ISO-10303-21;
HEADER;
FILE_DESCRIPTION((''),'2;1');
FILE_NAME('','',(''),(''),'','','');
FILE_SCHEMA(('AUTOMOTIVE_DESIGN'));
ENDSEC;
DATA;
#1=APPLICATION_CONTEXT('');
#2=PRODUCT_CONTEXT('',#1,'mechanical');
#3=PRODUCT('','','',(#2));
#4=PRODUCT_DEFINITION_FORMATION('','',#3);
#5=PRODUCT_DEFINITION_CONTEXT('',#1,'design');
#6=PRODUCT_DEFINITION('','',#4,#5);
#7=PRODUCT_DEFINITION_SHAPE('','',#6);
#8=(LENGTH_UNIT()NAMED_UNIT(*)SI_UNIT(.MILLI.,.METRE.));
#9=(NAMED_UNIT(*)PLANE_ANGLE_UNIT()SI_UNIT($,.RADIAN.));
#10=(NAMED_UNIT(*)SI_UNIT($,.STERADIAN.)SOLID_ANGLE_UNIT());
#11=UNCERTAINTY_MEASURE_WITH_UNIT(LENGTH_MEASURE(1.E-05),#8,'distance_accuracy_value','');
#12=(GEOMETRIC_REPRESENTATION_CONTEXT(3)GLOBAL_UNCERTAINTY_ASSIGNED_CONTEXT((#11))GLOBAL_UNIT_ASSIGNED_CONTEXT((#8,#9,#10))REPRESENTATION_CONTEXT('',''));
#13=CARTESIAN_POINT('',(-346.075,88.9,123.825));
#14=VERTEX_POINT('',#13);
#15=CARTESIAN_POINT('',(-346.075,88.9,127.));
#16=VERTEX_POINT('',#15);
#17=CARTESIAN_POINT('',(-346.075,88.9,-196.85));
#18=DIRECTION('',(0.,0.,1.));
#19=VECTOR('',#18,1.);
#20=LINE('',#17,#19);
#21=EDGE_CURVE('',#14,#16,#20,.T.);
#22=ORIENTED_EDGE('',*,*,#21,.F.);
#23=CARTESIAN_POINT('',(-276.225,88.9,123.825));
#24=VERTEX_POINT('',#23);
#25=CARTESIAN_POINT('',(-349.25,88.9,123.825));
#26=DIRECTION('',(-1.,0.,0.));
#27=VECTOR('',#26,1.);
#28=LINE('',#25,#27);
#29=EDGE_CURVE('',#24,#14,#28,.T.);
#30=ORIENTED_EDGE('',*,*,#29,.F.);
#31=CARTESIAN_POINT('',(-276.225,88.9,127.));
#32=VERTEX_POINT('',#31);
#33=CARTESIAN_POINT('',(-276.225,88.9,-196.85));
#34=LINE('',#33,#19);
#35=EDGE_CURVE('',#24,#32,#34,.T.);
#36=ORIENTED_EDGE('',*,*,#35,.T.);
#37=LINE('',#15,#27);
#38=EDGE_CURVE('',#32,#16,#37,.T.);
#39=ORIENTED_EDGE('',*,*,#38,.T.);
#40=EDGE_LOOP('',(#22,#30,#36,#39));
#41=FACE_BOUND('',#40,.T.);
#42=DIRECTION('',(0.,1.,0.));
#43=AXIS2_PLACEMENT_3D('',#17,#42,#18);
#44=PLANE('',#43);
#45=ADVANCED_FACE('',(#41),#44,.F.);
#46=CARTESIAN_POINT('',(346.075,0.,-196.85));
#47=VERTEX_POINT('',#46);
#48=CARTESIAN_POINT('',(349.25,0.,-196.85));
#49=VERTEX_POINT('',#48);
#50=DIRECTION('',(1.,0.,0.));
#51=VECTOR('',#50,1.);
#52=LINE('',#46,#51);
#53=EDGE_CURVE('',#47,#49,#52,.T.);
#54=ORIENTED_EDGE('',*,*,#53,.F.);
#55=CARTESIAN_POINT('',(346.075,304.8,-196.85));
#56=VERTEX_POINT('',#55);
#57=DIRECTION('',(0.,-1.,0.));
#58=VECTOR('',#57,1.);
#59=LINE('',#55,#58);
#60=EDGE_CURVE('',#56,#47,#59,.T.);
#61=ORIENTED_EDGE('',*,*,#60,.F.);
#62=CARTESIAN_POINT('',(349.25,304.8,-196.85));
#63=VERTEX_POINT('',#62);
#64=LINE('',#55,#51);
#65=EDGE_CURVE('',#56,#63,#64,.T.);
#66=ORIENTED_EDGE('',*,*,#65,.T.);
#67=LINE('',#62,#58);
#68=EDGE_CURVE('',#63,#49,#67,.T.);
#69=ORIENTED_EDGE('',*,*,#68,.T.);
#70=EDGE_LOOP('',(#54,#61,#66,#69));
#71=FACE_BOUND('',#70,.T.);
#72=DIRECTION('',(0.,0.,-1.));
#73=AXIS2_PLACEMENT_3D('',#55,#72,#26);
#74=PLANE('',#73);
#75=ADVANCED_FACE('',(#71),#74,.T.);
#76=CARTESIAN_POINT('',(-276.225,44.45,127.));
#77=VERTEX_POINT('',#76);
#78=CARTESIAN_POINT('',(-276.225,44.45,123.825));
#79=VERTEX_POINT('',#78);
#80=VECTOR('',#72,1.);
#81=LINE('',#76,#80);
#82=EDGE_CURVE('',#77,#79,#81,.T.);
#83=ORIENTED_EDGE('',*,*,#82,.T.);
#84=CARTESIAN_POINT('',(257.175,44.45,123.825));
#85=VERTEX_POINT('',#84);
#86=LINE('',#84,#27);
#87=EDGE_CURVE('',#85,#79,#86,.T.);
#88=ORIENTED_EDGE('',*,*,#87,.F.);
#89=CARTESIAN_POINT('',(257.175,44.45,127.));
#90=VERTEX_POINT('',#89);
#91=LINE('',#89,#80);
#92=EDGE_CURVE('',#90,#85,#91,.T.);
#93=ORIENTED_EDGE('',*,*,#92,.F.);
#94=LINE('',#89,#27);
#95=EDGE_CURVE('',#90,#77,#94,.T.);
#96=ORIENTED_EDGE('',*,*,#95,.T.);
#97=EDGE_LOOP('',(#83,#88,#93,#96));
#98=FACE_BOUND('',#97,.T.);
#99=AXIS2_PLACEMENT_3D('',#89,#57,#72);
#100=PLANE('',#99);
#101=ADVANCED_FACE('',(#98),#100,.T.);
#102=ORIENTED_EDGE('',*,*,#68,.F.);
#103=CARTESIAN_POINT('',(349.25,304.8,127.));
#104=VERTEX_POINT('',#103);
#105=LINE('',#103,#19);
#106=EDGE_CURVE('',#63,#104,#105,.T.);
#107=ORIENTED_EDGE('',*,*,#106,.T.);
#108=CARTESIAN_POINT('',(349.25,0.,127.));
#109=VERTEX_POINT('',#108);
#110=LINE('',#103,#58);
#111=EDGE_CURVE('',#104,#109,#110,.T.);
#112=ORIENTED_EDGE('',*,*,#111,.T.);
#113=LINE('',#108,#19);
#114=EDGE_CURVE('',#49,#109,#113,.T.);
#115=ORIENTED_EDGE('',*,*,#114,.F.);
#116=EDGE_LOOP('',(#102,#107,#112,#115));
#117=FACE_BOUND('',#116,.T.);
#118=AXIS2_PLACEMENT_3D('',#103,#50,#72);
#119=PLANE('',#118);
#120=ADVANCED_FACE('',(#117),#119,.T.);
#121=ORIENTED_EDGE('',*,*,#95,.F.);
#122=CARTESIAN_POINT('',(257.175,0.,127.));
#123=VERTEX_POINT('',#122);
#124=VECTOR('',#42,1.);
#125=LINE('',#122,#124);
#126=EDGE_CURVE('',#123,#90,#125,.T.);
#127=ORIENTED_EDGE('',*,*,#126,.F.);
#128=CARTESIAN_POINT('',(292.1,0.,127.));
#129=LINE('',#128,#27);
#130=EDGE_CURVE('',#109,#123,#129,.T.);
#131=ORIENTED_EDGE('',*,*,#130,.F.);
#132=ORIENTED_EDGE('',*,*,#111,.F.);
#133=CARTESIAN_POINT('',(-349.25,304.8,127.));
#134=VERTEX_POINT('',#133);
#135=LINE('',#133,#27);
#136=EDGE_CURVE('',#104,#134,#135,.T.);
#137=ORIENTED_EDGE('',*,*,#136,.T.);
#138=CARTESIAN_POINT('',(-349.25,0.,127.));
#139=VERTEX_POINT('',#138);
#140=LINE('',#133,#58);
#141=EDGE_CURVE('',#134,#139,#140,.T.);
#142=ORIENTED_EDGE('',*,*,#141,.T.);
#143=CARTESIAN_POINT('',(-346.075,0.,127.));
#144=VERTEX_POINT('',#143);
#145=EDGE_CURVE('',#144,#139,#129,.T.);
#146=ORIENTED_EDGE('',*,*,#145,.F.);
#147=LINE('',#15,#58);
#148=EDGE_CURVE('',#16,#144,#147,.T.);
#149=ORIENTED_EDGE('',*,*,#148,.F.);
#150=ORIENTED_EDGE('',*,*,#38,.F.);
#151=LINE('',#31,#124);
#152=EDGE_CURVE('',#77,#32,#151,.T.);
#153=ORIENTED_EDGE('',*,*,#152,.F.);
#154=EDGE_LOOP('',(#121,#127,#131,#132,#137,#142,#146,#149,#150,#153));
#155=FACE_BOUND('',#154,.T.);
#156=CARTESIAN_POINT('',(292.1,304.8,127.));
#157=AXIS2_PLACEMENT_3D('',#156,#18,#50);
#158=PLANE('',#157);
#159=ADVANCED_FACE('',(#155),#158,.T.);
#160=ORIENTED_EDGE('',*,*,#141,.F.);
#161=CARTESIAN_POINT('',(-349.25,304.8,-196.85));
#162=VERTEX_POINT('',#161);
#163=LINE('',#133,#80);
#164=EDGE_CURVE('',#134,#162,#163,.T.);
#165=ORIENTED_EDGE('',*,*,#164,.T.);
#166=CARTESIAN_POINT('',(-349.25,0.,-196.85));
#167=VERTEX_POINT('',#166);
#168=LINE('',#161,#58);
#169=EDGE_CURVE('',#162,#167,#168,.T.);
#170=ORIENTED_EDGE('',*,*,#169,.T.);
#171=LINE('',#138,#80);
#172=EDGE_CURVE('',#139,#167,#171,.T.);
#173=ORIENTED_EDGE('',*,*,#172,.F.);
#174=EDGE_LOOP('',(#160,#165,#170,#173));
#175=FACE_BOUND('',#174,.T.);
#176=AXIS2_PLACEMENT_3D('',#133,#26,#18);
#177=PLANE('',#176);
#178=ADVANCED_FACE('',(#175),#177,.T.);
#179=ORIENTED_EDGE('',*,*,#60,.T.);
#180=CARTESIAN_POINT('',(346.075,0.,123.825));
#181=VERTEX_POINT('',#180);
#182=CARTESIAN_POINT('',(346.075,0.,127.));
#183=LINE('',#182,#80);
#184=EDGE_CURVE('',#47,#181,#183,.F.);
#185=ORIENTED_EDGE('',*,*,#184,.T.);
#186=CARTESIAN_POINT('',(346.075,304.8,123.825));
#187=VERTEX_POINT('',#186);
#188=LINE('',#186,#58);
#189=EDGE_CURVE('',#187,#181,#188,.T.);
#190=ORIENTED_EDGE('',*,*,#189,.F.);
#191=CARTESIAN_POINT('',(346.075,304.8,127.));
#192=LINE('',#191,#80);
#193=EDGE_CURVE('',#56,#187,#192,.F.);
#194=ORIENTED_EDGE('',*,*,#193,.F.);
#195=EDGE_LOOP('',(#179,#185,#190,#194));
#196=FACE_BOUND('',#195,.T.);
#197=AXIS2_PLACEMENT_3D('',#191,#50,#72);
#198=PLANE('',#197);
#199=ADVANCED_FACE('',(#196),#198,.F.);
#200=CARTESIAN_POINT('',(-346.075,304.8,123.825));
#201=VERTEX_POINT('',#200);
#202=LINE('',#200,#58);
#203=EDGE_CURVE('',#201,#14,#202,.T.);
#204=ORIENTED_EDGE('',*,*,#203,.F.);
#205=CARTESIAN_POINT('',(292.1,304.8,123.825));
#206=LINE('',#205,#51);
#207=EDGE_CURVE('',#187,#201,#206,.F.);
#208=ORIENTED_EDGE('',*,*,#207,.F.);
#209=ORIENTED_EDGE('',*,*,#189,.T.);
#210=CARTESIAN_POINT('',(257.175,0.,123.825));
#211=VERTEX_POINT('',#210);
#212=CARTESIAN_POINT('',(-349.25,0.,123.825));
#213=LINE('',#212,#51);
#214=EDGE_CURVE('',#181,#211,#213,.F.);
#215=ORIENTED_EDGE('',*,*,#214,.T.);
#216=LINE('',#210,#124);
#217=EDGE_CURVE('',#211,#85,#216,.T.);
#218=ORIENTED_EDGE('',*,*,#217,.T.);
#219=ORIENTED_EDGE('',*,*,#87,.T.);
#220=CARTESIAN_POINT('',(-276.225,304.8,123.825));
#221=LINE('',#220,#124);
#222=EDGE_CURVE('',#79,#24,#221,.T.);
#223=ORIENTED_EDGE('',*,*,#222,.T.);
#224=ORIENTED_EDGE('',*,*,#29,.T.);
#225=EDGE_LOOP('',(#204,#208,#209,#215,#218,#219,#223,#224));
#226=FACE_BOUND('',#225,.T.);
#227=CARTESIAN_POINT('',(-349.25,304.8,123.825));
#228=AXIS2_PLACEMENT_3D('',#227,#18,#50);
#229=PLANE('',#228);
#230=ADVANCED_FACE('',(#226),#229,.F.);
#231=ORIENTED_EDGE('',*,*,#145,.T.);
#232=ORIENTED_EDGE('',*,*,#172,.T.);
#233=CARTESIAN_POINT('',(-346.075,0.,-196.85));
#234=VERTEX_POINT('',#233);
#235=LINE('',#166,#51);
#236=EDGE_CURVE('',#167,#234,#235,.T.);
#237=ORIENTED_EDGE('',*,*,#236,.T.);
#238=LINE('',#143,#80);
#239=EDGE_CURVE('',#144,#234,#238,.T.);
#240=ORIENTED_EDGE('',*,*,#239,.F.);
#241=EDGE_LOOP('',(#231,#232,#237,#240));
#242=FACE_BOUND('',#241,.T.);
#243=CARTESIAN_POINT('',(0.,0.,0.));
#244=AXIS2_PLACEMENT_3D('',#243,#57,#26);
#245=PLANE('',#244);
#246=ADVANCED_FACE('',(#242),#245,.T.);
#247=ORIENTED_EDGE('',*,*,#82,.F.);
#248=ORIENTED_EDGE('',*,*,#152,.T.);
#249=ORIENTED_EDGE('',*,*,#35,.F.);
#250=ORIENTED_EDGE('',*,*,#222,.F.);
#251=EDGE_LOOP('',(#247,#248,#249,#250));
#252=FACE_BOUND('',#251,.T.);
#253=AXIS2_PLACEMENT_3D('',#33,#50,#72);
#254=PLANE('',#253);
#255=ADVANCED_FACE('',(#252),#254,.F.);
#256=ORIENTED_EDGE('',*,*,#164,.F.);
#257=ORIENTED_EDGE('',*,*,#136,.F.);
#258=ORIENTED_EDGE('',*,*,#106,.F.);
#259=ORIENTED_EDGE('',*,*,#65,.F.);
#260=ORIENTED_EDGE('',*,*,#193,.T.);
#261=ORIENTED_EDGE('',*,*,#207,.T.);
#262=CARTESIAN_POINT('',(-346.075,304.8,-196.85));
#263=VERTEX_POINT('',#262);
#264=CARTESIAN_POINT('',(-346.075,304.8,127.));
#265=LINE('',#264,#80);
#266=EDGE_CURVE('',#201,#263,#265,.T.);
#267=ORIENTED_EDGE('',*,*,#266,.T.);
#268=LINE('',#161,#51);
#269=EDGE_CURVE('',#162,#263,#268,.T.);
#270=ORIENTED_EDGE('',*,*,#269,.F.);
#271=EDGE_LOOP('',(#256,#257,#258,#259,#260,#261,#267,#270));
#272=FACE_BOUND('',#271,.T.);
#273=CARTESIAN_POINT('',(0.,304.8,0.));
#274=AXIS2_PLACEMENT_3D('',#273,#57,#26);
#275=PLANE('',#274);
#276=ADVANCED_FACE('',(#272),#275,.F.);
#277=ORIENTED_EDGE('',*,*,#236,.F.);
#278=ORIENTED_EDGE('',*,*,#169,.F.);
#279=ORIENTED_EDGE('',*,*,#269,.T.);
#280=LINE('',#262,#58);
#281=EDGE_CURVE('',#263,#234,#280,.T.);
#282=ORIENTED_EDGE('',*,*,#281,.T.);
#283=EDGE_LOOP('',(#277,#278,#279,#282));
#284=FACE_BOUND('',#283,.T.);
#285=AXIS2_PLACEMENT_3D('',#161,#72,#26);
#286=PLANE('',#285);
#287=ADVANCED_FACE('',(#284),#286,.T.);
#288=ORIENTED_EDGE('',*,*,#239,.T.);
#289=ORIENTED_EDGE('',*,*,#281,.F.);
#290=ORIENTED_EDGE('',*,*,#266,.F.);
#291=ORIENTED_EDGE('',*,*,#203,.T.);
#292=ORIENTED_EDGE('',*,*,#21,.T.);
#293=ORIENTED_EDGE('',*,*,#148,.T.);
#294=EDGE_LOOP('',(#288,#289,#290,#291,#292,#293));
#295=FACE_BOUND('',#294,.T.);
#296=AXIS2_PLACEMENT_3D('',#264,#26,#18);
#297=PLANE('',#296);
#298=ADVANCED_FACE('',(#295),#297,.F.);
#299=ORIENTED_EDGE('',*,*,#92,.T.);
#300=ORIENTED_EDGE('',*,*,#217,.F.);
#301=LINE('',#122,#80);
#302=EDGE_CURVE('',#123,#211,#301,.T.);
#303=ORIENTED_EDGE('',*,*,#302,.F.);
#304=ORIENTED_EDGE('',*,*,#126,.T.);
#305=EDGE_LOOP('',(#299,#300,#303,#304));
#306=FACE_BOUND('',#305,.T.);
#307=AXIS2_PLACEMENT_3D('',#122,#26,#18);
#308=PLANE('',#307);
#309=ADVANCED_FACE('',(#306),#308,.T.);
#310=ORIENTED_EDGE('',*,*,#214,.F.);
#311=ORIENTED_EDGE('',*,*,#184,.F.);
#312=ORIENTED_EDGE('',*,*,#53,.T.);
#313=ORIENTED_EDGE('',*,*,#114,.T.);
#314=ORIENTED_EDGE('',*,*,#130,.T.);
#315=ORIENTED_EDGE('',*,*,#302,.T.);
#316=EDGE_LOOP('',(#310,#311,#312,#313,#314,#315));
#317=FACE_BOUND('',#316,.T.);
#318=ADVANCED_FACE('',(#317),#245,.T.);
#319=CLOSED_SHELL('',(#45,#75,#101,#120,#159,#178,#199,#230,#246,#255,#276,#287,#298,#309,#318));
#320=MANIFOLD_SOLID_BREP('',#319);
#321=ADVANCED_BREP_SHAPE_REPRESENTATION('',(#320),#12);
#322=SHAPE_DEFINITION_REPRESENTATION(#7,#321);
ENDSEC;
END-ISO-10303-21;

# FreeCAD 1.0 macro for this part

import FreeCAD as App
import Part
import Sketcher

V = App.Vector
Q = App.Units.Quantity


def add_polygon(sketch, points):
    """Adds a closed chain of lines whose ends are joined by coincident constraints."""
    first, n = sketch.GeometryCount, len(points)
    for a, b in zip(points, points[1:] + points[:1]):
        sketch.addGeometry(Part.LineSegment(App.Vector(*a, 0), App.Vector(*b, 0)), False)
    for i in range(n):
        sketch.addConstraint(Sketcher.Constraint("Coincident", first + i, 2, first + (i + 1) % n, 1))

doc = App.newDocument("Part")
body = doc.addObject("PartDesign::Body", "Body")

# Sketch on XZ plane
sketch1 = body.newObject("Sketcher::SketchObject", "Sketch")
sketch1.AttachmentSupport = (doc.getObject("XZ_Plane"), [""])
sketch1.MapMode = "FlatFace"
add_polygon(sketch1, [(-349.2, -196.8), (-349.2, 127), (349.2, 127), (349.2, -196.8), (346.1, -196.8), (346.1, 123.8), (-346.1, 123.8), (-346.1, -196.8)])  # lines 0-7
sketch1.addConstraint([
    Sketcher.Constraint("Vertical", 0),
    Sketcher.Constraint("Horizontal", 1),
    Sketcher.Constraint("Vertical", 2),
    Sketcher.Constraint("Horizontal", 3),
    Sketcher.Constraint("Vertical", 4),
    Sketcher.Constraint("Horizontal", 5),
    Sketcher.Constraint("Vertical", 6),
    Sketcher.Constraint("Horizontal", 7),
    Sketcher.Constraint("Symmetric", 3, 2, 6, 2, -2),
    Sketcher.Constraint("Equal", 3, 7),
    Sketcher.Constraint("DistanceX", 1, 1, 1, 2, Q("27.5 in")),
    Sketcher.Constraint("DistanceY", -1, 1, 0, 2, Q("5 in")),
    Sketcher.Constraint("DistanceX", 5, 2, 5, 1, Q("27.25 in")),
    Sketcher.Constraint("DistanceY", 0, 1, 0, 2, Q("12.75 in")),
    Sketcher.Constraint("DistanceY", 4, 1, 4, 2, Q("12.625 in")),
])
pad1 = body.newObject("PartDesign::Pad", "Pad")
pad1.Profile = sketch1
pad1.Length = Q("12 in")
pad1.Reversed = True

# Sketch on XY plane
sketch2 = body.newObject("Sketcher::SketchObject", "Sketch001")
sketch2.AttachmentSupport = (doc.getObject("XY_Plane"), [""])
sketch2.MapMode = "FlatFace"
sketch2.AttachmentOffset = App.Placement(V(0, 0, 5 * 25.4), App.Rotation())
add_polygon(sketch2, [(-346, 89), (-346, 0), (-276, 0), (-276, 89)])  # lines 0-3
sketch2.addConstraint([
    Sketcher.Constraint("Vertical", 0),
    Sketcher.Constraint("Horizontal", 1),
    Sketcher.Constraint("Vertical", 2),
    Sketcher.Constraint("Horizontal", 3),
    Sketcher.Constraint("PointOnObject", 0, 2, -1),
    Sketcher.Constraint("DistanceY", 0, 2, 0, 1, Q("3.5 in")),
    Sketcher.Constraint("DistanceX", 1, 1, 1, 2, Q("2.75 in")),
    Sketcher.Constraint("DistanceX", 0, 2, -1, 1, Q("13.625 in")),
])
pocket1 = body.newObject("PartDesign::Pocket", "Pocket")
pocket1.Profile = sketch2
pocket1.Type = "ThroughAll"

# Sketch on XY plane
sketch3 = body.newObject("Sketcher::SketchObject", "Sketch002")
sketch3.AttachmentSupport = (doc.getObject("XY_Plane"), [""])
sketch3.MapMode = "FlatFace"
sketch3.AttachmentOffset = App.Placement(V(0, 0, 4.875 * 25.4), App.Rotation())
add_polygon(sketch3, [(257, 44), (257, 0), (-276, 0), (-276, 44)])  # lines 0-3
sketch3.addConstraint([
    Sketcher.Constraint("Vertical", 0),
    Sketcher.Constraint("Horizontal", 1),
    Sketcher.Constraint("Vertical", 2),
    Sketcher.Constraint("Horizontal", 3),
    Sketcher.Constraint("PointOnObject", 0, 2, -1),
    Sketcher.Constraint("DistanceX", 1, 2, 1, 1, Q("21 in")),
    Sketcher.Constraint("DistanceY", 0, 2, 0, 1, Q("1.75 in")),
    Sketcher.Constraint("DistanceX", -1, 1, 0, 2, Q("10.125 in")),
])
pocket2 = body.newObject("PartDesign::Pocket", "Pocket001")
pocket2.Profile = sketch3
pocket2.Type = "ThroughAll"
pocket2.Reversed = True

doc.recompute()
